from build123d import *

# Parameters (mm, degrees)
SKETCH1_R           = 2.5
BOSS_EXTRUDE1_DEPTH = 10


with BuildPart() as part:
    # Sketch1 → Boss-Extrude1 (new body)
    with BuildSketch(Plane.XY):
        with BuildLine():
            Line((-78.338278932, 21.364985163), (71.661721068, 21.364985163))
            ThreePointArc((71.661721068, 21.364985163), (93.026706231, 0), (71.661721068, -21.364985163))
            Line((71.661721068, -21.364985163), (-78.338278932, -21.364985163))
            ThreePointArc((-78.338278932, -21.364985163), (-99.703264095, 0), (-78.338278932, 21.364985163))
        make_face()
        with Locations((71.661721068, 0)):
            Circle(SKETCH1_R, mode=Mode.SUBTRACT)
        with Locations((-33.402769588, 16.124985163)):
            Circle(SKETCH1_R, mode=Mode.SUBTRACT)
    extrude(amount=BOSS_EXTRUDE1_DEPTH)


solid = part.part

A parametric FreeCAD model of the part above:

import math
import FreeCAD as App
import Part
import Sketcher
Q = App.Units.Quantity

doc = App.newDocument("Part")
body = doc.addObject("PartDesign::Body", "Body")

# Sketch on XY plane
sketch1 = body.newObject("Sketcher::SketchObject", "Sketch")
sketch1.AttachmentSupport = (doc.getObject("XY_Plane"), [""])
sketch1.MapMode = "FlatFace"
sketch1.addGeometry([
    Part.LineSegment(App.Vector(71.661721, 21.364985, 0), App.Vector(-78.338279, 21.364985, 0)),  # 0
    Part.ArcOfCircle(Part.Circle(App.Vector(-78.338279, 0, 0), App.Vector(0, 0, 1), 21.364985), math.radians(90), math.radians(270)),  # 1
    Part.LineSegment(App.Vector(-78.338279, -21.364985, 0), App.Vector(71.661721, -21.364985, 0)),  # 2
    Part.ArcOfCircle(Part.Circle(App.Vector(71.661721, 0, 0), App.Vector(0, 0, 1), 21.364985), math.radians(-90), math.radians(90)),  # 3
    Part.Circle(App.Vector(71.661721, 0, 0), App.Vector(0, 0, 1), 2.5),  # 4
    Part.Circle(App.Vector(-33.40277, 16.124985, 0), App.Vector(0, 0, 1), 2.5),  # 5
], False)
sketch1.addConstraint([
    Sketcher.Constraint("Tangent", 0, 2, 1, 1),
    Sketcher.Constraint("Tangent", 1, 2, 2, 1),
    Sketcher.Constraint("Tangent", 2, 2, 3, 1),
    Sketcher.Constraint("Tangent", 3, 2, 0, 1),
    Sketcher.Constraint("Horizontal", 0),
    Sketcher.Constraint("Horizontal", 2),
    Sketcher.Constraint("Coincident", 4, 3, 3, 3),
    Sketcher.Constraint("Equal", 4, 5),
    Sketcher.Constraint("PointOnObject", 1, 3, -1),
    Sketcher.Constraint("Diameter", 4, Q("5 mm")),
    Sketcher.Constraint("DistanceX", 0, 2, 0, 1, Q("150 mm")),
    Sketcher.Constraint("DistanceY", 5, 3, 0, 2, Q("5.24 mm")),
    Sketcher.Constraint("Radius", 1, Q("21.364985 mm")),
    Sketcher.Constraint("DistanceX", 1, 3, -1, 1, Q("78.338279 mm")),
    Sketcher.Constraint("DistanceX", 5, 3, -1, 1, Q("33.40277 mm")),
])
pad1 = body.newObject("PartDesign::Pad", "Pad")
pad1.Profile = sketch1
pad1.Length = 10

doc.recompute()
